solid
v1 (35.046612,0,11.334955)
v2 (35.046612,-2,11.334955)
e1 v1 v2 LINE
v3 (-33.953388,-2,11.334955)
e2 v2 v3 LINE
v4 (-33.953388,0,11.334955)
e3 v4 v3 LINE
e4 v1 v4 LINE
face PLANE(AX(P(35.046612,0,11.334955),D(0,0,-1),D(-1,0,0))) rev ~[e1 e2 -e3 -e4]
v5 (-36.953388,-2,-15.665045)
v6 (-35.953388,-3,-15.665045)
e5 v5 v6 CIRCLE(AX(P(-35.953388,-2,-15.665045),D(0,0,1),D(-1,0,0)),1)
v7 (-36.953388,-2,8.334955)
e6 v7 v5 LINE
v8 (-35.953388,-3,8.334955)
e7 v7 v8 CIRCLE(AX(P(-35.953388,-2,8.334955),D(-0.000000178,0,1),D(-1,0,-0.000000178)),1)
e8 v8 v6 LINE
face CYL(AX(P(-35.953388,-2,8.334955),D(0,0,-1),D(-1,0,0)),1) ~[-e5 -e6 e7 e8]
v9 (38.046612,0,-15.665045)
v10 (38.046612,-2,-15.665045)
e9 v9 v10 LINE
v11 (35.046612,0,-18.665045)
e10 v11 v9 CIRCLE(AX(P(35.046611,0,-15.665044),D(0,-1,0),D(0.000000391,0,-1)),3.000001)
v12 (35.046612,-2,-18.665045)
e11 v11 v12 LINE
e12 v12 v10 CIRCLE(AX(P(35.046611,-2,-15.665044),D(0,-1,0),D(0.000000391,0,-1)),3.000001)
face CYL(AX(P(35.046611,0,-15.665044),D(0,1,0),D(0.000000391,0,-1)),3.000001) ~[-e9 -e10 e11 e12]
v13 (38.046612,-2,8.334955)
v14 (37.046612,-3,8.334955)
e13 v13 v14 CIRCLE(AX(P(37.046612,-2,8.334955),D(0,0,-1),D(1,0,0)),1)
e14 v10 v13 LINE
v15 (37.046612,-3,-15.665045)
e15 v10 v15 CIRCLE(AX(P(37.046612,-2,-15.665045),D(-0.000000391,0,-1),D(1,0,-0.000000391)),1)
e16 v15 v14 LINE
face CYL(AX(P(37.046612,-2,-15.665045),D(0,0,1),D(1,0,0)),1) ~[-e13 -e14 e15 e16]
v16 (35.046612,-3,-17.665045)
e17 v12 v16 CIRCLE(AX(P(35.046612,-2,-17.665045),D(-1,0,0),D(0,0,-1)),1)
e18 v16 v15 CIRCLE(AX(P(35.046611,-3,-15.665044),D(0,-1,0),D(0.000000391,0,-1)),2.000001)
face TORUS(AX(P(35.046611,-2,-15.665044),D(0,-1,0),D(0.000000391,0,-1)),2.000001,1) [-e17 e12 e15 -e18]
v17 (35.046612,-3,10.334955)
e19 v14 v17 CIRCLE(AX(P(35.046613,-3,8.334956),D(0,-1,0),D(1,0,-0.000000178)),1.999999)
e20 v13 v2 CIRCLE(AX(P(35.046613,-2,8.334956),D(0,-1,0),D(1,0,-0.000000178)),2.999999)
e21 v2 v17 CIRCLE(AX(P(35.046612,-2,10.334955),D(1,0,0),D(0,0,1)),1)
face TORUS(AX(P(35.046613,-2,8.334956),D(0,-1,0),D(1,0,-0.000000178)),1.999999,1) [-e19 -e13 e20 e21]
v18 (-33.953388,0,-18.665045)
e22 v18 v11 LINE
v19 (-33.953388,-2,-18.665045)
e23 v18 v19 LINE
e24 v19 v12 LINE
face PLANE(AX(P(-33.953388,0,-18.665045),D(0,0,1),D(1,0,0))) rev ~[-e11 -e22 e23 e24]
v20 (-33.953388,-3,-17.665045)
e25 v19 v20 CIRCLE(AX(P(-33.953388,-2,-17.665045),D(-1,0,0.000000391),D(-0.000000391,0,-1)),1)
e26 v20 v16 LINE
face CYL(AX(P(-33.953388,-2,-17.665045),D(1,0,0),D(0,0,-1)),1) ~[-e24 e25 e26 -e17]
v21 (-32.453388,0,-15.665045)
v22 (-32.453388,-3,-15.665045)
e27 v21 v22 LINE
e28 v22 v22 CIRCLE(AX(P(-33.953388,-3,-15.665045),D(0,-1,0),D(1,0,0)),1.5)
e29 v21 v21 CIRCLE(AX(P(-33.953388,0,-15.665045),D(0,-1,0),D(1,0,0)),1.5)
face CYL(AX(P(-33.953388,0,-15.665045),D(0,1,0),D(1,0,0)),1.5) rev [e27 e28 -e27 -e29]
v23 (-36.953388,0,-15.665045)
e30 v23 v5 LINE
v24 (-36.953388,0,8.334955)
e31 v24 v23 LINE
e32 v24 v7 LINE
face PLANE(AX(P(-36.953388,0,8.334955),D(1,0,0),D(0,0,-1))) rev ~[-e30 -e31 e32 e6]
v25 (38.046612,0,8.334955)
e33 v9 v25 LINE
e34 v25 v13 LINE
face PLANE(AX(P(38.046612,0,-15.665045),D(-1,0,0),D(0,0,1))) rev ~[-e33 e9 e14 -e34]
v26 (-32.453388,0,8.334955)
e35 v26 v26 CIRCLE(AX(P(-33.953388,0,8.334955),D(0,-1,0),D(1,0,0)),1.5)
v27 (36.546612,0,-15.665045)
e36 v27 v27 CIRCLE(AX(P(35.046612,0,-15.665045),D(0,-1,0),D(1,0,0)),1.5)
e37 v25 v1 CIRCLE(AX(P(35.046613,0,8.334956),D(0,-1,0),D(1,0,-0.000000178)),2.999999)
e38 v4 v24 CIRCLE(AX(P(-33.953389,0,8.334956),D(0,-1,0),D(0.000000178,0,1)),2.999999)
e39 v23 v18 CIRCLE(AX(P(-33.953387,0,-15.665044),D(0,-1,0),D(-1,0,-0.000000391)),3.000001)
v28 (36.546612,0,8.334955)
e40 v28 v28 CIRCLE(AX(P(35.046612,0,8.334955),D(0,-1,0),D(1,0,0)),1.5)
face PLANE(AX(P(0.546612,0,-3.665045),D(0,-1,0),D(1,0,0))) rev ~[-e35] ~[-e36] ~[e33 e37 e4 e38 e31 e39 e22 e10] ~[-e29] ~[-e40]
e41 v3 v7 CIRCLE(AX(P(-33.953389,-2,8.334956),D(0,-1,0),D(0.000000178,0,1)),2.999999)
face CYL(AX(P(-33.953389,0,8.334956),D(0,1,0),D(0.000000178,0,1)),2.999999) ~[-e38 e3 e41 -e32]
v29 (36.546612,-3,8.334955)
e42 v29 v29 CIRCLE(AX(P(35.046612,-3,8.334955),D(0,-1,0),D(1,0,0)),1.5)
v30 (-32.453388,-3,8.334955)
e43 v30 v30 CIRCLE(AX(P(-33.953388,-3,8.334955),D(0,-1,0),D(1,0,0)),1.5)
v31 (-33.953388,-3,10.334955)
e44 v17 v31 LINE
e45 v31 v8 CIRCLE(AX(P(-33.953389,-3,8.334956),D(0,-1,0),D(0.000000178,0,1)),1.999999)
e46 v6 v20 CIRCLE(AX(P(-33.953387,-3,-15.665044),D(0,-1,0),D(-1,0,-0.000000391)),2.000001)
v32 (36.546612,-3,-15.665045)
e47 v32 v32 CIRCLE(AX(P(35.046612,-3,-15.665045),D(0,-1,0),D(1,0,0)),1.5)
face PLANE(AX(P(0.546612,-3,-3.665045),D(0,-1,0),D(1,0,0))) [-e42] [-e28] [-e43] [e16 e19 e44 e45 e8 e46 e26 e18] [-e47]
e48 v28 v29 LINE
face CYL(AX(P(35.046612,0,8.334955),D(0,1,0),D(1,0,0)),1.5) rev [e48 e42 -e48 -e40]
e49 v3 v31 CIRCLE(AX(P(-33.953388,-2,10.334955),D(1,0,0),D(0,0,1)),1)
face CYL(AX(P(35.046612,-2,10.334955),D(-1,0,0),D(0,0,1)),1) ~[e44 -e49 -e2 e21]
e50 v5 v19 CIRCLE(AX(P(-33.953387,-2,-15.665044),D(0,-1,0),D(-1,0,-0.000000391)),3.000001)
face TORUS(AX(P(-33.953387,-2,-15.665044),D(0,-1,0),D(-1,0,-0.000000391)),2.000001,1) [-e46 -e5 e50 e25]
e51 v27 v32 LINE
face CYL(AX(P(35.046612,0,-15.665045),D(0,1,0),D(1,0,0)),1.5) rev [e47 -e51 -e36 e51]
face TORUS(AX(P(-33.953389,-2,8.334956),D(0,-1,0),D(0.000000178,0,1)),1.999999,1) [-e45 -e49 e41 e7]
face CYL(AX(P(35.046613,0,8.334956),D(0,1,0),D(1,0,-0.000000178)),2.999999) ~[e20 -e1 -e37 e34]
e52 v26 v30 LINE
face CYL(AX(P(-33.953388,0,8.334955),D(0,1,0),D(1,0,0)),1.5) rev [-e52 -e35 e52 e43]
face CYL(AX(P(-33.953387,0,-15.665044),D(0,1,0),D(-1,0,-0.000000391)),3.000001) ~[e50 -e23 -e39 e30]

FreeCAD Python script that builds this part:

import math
import FreeCAD as App
import Part
import Sketcher

V = App.Vector
Q = App.Units.Quantity


def edges_at(feature, points):
    """Names of the edges that pass closest to the given points."""
    edges = feature.Shape.Edges
    near = lambda p: min(range(len(edges)), key=lambda i: edges[i].distToShape(Part.Vertex(*p))[0])
    return sorted({f"Edge{near(p) + 1}" for p in points})

doc = App.newDocument("Part")
body = doc.addObject("PartDesign::Body", "Body")

# Sketch on XZ plane
sketch1 = body.newObject("Sketcher::SketchObject", "Sketch")
sketch1.AttachmentSupport = (doc.getObject("XZ_Plane"), [""])
sketch1.MapMode = "FlatFace"
sketch1.addGeometry(Part.LineSegment(V(35, 11.3, 0), V(-34, 11.3, 0)), False)
sketch1.addGeometry(Part.ArcOfCircle(Part.Circle(V(-34, 8.3, 0), V(0, 0, 1), 3), math.radians(90), math.radians(180)), False)
sketch1.addGeometry(Part.LineSegment(V(-37, 8.3, 0), V(-37, -15.7, 0)), False)
sketch1.addGeometry(Part.ArcOfCircle(Part.Circle(V(-34, -15.7, 0), V(0, 0, 1), 3), math.radians(-180), math.radians(-90)), False)
sketch1.addGeometry(Part.LineSegment(V(-34, -18.7, 0), V(35, -18.7, 0)), False)
sketch1.addGeometry(Part.ArcOfCircle(Part.Circle(V(35, -15.7, 0), V(0, 0, 1), 3), math.radians(-90), math.radians(0)), False)
sketch1.addGeometry(Part.LineSegment(V(38, -15.7, 0), V(38, 8.3, 0)), False)
sketch1.addGeometry(Part.ArcOfCircle(Part.Circle(V(35, 8.3, 0), V(0, 0, 1), 3), math.radians(0), math.radians(90)), False)
sketch1.addGeometry(Part.Circle(V(-34, -15.7, 0), V(0, 0, 1), 1.5), False)
sketch1.addGeometry(Part.Circle(V(35, -15.7, 0), V(0, 0, 1), 1.5), False)
sketch1.addGeometry(Part.Circle(V(-34, 8.3, 0), V(0, 0, 1), 1.5), False)
sketch1.addGeometry(Part.Circle(V(35, 8.3, 0), V(0, 0, 1), 1.5), False)
sketch1.addConstraint(Sketcher.Constraint("Tangent", 0, 2, 1, 1))
sketch1.addConstraint(Sketcher.Constraint("Tangent", 1, 2, 2, 1))
sketch1.addConstraint(Sketcher.Constraint("Tangent", 2, 2, 3, 1))
sketch1.addConstraint(Sketcher.Constraint("Tangent", 3, 2, 4, 1))
sketch1.addConstraint(Sketcher.Constraint("Tangent", 4, 2, 5, 1))
sketch1.addConstraint(Sketcher.Constraint("Tangent", 5, 2, 6, 1))
sketch1.addConstraint(Sketcher.Constraint("Tangent", 6, 2, 7, 1))
sketch1.addConstraint(Sketcher.Constraint("Tangent", 7, 2, 0, 1))
sketch1.addConstraint(Sketcher.Constraint("Horizontal", 0))
sketch1.addConstraint(Sketcher.Constraint("Vertical", 2))
sketch1.addConstraint(Sketcher.Constraint("Horizontal", 4))
sketch1.addConstraint(Sketcher.Constraint("Vertical", 6))
sketch1.addConstraint(Sketcher.Constraint("Coincident", 8, 3, 3, 3))
sketch1.addConstraint(Sketcher.Constraint("Coincident", 9, 3, 5, 3))
sketch1.addConstraint(Sketcher.Constraint("Coincident", 10, 3, 1, 3))
sketch1.addConstraint(Sketcher.Constraint("Coincident", 11, 3, 7, 3))
sketch1.addConstraint(Sketcher.Constraint("Equal", 1, 3))
sketch1.addConstraint(Sketcher.Constraint("Equal", 3, 5))
sketch1.addConstraint(Sketcher.Constraint("Equal", 5, 7))
sketch1.addConstraint(Sketcher.Constraint("Equal", 8, 9))
sketch1.addConstraint(Sketcher.Constraint("Equal", 9, 10))
sketch1.addConstraint(Sketcher.Constraint("Equal", 10, 11))
sketch1.addConstraint(Sketcher.Constraint("Diameter", 8, Q("3 mm")))
sketch1.addConstraint(Sketcher.Constraint("Radius", 1, Q("2.999999 mm")))
sketch1.addConstraint(Sketcher.Constraint("DistanceX", 0, 2, 0, 1, Q("69 mm")))
sketch1.addConstraint(Sketcher.Constraint("DistanceY", 2, 2, 2, 1, Q("24 mm")))
sketch1.addConstraint(Sketcher.Constraint("DistanceX", 1, 3, -1, 1, Q("33.953389 mm")))
sketch1.addConstraint(Sketcher.Constraint("DistanceY", -1, 1, 1, 3, Q("8.334956 mm")))
pad1 = body.newObject("PartDesign::Pad", "Pad")
pad1.Profile = sketch1
pad1.Length = 3
doc.recompute()

fillet = body.newObject("PartDesign::Fillet", "Fillet")
fillet.Base = (pad1, edges_at(pad1, [
    (0.547, -3, 11.335),
    (-36.075, -3, 10.456),
    (-36.953, -3, -3.665),
    (-36.075, -3, -17.786),
    (0.547, -3, -18.665),
    (37.168, -3, 10.456),
    (38.047, -3, -3.665),
    (37.168, -3, -17.786),
]))
fillet.Radius = 1

doc.recompute()
